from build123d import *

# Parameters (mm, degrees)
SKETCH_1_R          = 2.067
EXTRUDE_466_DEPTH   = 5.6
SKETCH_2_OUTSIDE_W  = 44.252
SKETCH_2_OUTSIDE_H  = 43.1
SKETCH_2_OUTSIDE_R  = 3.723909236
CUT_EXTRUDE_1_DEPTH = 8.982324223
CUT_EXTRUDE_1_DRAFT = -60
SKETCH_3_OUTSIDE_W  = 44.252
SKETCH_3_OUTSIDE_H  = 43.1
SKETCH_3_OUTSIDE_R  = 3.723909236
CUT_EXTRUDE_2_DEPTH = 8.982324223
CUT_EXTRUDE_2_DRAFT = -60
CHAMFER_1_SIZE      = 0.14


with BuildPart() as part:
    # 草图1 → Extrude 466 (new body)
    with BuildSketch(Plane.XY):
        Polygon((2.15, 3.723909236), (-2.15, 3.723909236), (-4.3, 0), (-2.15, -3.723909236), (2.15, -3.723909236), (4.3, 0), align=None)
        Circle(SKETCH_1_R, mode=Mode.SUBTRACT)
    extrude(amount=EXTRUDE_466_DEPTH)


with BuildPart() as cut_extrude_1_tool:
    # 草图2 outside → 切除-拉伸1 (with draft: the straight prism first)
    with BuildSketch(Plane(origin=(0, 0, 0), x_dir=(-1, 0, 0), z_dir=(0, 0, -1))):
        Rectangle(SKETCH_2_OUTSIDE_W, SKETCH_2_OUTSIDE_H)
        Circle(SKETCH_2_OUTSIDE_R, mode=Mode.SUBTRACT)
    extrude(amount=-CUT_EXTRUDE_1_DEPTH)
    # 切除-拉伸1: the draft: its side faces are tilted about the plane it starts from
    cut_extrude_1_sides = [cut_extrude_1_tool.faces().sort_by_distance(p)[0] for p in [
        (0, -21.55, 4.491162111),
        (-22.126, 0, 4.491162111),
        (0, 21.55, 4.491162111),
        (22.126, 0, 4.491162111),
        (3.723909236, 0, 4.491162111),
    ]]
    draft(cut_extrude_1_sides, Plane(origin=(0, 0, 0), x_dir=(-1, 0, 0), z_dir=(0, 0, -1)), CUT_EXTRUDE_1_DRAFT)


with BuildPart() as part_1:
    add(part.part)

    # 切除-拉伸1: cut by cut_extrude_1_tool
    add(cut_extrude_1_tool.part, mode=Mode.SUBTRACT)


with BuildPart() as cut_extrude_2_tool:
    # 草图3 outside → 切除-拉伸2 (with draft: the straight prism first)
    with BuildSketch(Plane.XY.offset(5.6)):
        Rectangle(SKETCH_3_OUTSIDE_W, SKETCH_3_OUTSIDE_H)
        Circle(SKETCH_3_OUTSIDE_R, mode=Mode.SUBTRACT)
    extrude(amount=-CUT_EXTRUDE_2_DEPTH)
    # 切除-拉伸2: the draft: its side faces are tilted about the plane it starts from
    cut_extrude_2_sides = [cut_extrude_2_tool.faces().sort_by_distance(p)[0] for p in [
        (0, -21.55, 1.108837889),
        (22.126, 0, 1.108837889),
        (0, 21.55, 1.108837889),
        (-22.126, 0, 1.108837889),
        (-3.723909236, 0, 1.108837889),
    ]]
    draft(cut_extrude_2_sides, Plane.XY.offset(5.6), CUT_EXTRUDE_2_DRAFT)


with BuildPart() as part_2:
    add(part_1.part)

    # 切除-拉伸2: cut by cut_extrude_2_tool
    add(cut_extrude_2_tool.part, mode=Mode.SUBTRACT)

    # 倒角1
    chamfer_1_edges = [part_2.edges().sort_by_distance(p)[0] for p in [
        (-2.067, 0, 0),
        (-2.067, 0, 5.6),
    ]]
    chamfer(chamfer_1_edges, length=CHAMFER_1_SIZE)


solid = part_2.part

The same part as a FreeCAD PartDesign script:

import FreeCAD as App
import Part
import Sketcher
from FreeCAD import Vector
Q = App.Units.Quantity


def edges_at(feature, points):
    """Names of the edges that pass closest to the given points."""
    edges = feature.Shape.Edges
    near = lambda p: min(range(len(edges)), key=lambda i: edges[i].distToShape(Part.Vertex(*p))[0])
    return sorted({f"Edge{near(p) + 1}" for p in points})


def faces_at(feature, points):
    """Names of the faces that lie closest to the given points."""
    faces = feature.Shape.Faces
    near = lambda p: min(range(len(faces)), key=lambda i: faces[i].distToShape(Part.Vertex(*p))[0])
    return sorted({f"Face{near(p) + 1}" for p in points})


def add_polygon(sketch, points):
    """Adds a closed chain of lines whose ends are joined by coincident constraints."""
    first, n = sketch.GeometryCount, len(points)
    for a, b in zip(points, points[1:] + points[:1]):
        sketch.addGeometry(Part.LineSegment(App.Vector(*a, 0), App.Vector(*b, 0)), False)
    for i in range(n):
        sketch.addConstraint(Sketcher.Constraint("Coincident", first + i, 2, first + (i + 1) % n, 1))

doc = App.newDocument("Part")
body = doc.addObject("PartDesign::Body", "Body")

# Sketch on XY plane
sketch1 = doc.addObject("Sketcher::SketchObject", "Sketch")
body.addObject(sketch1)
sketch1.AttachmentSupport = (doc.XY_Plane, [""])
sketch1.MapMode = "FlatFace"
add_polygon(sketch1, [(2.1, 3.7), (-2.1, 3.7), (-4.3, 0), (-2.1, -3.7), (2.1, -3.7), (4.3, 0)])  # lines 0-5
sketch1.addGeometry(Part.Circle(Vector(0, 0, 0), Vector(0, 0, 1), 2.1), False)  # 6
sketch1.addConstraint(Sketcher.Constraint("Horizontal", 0))
sketch1.addConstraint(Sketcher.Constraint("Horizontal", 3))
sketch1.addConstraint(Sketcher.Constraint("Coincident", 6, 3, -1, 1))
sketch1.addConstraint(Sketcher.Constraint("Symmetric", 0, 2, 3, 2, -1, 1))
sketch1.addConstraint(Sketcher.Constraint("Symmetric", 1, 2, 4, 2, -1, 1))
sketch1.addConstraint(Sketcher.Constraint("PointOnObject", 1, 2, -1))
sketch1.addConstraint(Sketcher.Constraint("Parallel", 2, 5))
sketch1.addConstraint(Sketcher.Constraint("Vertical", 0, 2, 2, 2))
sketch1.addConstraint(Sketcher.Constraint("Angle", 1, Q("-120 deg")))
sketch1.addConstraint(Sketcher.Constraint("Diameter", 6, Q("4.134 mm")))
sketch1.addConstraint(Sketcher.Constraint("DistanceX", 0, 2, 0, 1, Q("4.3 mm")))
sketch1.addConstraint(Sketcher.Constraint("Distance", 1, Q("4.3 mm")))
pad1 = doc.addObject("PartDesign::Pad", "Pad")
body.addObject(pad1)
pad1.Profile = sketch1
pad1.Length = 5.6
body2 = doc.addObject("PartDesign::Body", "Body001")

# Sketch on XY plane
sketch2 = doc.addObject("Sketcher::SketchObject", "Sketch001")
body2.addObject(sketch2)
sketch2.AttachmentSupport = (doc.getObject("XY_Plane001"), [""])
sketch2.MapMode = "FlatFace"
add_polygon(sketch2, [(22.1, 21.6), (22.1, -21.6), (-22.1, -21.6), (-22.1, 21.6)])  # lines 0-3
sketch2.addGeometry(Part.Circle(Vector(0, 0, 0), Vector(0, 0, 1), 3.7), False)  # 4
sketch2.addConstraint(Sketcher.Constraint("Vertical", 0))
sketch2.addConstraint(Sketcher.Constraint("Horizontal", 1))
sketch2.addConstraint(Sketcher.Constraint("Vertical", 2))
sketch2.addConstraint(Sketcher.Constraint("Horizontal", 3))
sketch2.addConstraint(Sketcher.Constraint("Coincident", 4, 3, -1, 1))
sketch2.addConstraint(Sketcher.Constraint("Symmetric", 0, 2, 2, 2, -1, 1))
sketch2.addConstraint(Sketcher.Constraint("DistanceY", 0, 2, 0, 1, Q("43.1 mm")))
sketch2.addConstraint(Sketcher.Constraint("Diameter", 4, Q("7.447818 mm")))
sketch2.addConstraint(Sketcher.Constraint("DistanceX", 1, 2, 1, 1, Q("44.252 mm")))
pad2 = doc.addObject("PartDesign::Pad", "Pad001")
body2.addObject(pad2)
pad2.Profile = sketch2
pad2.Length = 8.982324
doc.recompute()

draft = doc.addObject("PartDesign::Draft", "Draft")
body2.addObject(draft)
draft.Base = (pad2, faces_at(pad2, [
    (0, -21.55, 4.491),
    (-22.126, 0, 4.491),
    (0, 21.55, 4.491),
    (22.126, 0, 4.491),
    (3.724, 0, 4.491),
]))
draft.NeutralPlane = (doc.getObject("XY_Plane001"), [""])
draft.Angle = 60
draft.Reversed = False
doc.recompute()

boolean = doc.addObject("PartDesign::Boolean", "Boolean")
body.addObject(boolean)
boolean.Type = "Cut"
boolean.addObjects([body2])
body3 = doc.addObject("PartDesign::Body", "Body002")

# Sketch on XY plane
sketch3 = doc.addObject("Sketcher::SketchObject", "Sketch002")
body3.addObject(sketch3)
sketch3.AttachmentSupport = (doc.getObject("XY_Plane002"), [""])
sketch3.MapMode = "FlatFace"
sketch3.AttachmentOffset = App.Placement(Vector(0, 0, 5.6), App.Rotation())
add_polygon(sketch3, [(-22.1, 21.6), (-22.1, -21.6), (22.1, -21.6), (22.1, 21.6)])  # lines 0-3
sketch3.addGeometry(Part.Circle(Vector(0, 0, 0), Vector(0, 0, 1), 3.7), False)  # 4
sketch3.addConstraint(Sketcher.Constraint("Vertical", 0))
sketch3.addConstraint(Sketcher.Constraint("Horizontal", 1))
sketch3.addConstraint(Sketcher.Constraint("Vertical", 2))
sketch3.addConstraint(Sketcher.Constraint("Horizontal", 3))
sketch3.addConstraint(Sketcher.Constraint("Coincident", 4, 3, -1, 1))
sketch3.addConstraint(Sketcher.Constraint("Symmetric", 0, 2, 2, 2, -1, 1))
sketch3.addConstraint(Sketcher.Constraint("DistanceY", 0, 2, 0, 1, Q("43.1 mm")))
sketch3.addConstraint(Sketcher.Constraint("Diameter", 4, Q("7.447818 mm")))
sketch3.addConstraint(Sketcher.Constraint("DistanceX", 1, 1, 1, 2, Q("44.252 mm")))
pad3 = doc.addObject("PartDesign::Pad", "Pad002")
body3.addObject(pad3)
pad3.Profile = sketch3
pad3.Length = 8.982324
pad3.Reversed = True
doc.recompute()

datumplane = doc.addObject("PartDesign::Plane", "DatumPlane")
body3.addObject(datumplane)
datumplane.AttachmentSupport = (doc.getObject("XY_Plane002"), [""])
datumplane.MapMode = "FlatFace"
datumplane.AttachmentOffset = App.Placement(Vector(0, 0, 5.6), App.Rotation())
draft2 = doc.addObject("PartDesign::Draft", "Draft001")
body3.addObject(draft2)
draft2.Base = (pad3, faces_at(pad3, [
    (0, -21.55, 1.109),
    (22.126, 0, 1.109),
    (0, 21.55, 1.109),
    (-22.126, 0, 1.109),
    (-3.724, 0, 1.109),
]))
draft2.NeutralPlane = (datumplane, [""])
draft2.Angle = 60
draft2.Reversed = True
doc.recompute()

boolean2 = doc.addObject("PartDesign::Boolean", "Boolean001")
body.addObject(boolean2)
boolean2.Type = "Cut"
boolean2.addObjects([body3])
doc.recompute()

chamfer = doc.addObject("PartDesign::Chamfer", "Chamfer")
body.addObject(chamfer)
chamfer.Base = (boolean2, edges_at(boolean2, [(-2.067, 0, 0), (-2.067, 0, 5.6)]))
chamfer.Size = 0.14

doc.recompute()
